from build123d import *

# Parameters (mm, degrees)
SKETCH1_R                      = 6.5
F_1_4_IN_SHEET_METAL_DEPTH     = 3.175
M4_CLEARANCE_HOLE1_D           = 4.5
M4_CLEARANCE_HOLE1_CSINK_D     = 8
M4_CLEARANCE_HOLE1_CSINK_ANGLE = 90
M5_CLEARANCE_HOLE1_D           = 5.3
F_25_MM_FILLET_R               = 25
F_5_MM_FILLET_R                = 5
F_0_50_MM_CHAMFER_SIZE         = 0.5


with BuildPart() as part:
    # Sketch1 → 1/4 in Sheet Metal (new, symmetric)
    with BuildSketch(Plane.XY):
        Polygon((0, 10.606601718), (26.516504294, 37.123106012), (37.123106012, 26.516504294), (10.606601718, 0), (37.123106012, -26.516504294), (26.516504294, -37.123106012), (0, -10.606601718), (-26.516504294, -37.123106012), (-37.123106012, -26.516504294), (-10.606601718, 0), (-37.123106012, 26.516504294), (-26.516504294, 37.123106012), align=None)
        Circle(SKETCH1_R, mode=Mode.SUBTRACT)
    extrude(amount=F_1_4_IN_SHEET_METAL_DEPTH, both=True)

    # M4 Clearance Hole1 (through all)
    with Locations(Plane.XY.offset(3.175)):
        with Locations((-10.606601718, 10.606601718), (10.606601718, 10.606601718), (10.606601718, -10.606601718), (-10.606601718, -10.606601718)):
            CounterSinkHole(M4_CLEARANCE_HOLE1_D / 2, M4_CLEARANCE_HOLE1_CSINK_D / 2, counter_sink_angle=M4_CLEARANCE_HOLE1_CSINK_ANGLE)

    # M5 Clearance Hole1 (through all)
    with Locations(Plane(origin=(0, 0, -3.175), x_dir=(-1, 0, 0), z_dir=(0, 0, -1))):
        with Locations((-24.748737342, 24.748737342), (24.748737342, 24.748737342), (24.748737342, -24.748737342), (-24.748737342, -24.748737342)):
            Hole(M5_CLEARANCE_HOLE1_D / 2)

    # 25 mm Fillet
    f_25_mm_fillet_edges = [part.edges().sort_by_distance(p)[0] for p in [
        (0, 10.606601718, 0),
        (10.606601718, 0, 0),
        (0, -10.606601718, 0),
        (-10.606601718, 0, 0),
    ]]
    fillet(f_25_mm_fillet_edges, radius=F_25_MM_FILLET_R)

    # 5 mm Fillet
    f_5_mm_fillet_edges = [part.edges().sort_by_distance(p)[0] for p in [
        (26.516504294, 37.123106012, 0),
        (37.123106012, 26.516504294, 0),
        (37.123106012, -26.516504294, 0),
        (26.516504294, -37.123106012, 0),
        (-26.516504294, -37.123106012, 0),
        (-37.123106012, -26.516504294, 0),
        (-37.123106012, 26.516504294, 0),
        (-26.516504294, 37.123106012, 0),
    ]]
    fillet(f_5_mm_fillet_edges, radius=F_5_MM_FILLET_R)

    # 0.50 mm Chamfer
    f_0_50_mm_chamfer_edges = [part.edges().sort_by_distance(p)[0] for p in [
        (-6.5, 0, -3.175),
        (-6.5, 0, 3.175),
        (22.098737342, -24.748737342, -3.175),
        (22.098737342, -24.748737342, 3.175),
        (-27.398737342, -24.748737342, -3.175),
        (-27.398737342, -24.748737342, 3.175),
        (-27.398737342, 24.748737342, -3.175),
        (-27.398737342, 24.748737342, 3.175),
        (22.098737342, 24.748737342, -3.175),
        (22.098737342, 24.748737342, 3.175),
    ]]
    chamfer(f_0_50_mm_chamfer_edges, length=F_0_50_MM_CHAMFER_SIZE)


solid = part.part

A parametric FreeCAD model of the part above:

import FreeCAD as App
import Part
import Sketcher
from FreeCAD import Vector
Q = App.Units.Quantity


def edges_at(feature, points):
    """Names of the edges that pass closest to the given points."""
    edges = feature.Shape.Edges
    near = lambda p: min(range(len(edges)), key=lambda i: edges[i].distToShape(Part.Vertex(*p))[0])
    return sorted({f"Edge{near(p) + 1}" for p in points})


def add_polygon(sketch, points):
    """Adds a closed chain of lines whose ends are joined by coincident constraints."""
    first, n = sketch.GeometryCount, len(points)
    for a, b in zip(points, points[1:] + points[:1]):
        sketch.addGeometry(Part.LineSegment(App.Vector(*a, 0), App.Vector(*b, 0)), False)
    for i in range(n):
        sketch.addConstraint(Sketcher.Constraint("Coincident", first + i, 2, first + (i + 1) % n, 1))

doc = App.newDocument("Part")
body = doc.addObject("PartDesign::Body", "Body")

# Sketch on XY plane
sketch1 = body.newObject("Sketcher::SketchObject", "Sketch")
sketch1.AttachmentSupport = (doc.getObject("XY_Plane"), [""])
sketch1.MapMode = "FlatFace"
add_polygon(sketch1, [(27, 37), (0, 11), (-27, 37), (-37, 27), (-11, 0), (-37, -27), (-27, -37), (0, -11), (27, -37), (37, -27), (11, 0), (37, 27)])  # lines 0-11
sketch1.addGeometry(Part.Circle(Vector(0, 0, 0), Vector(0, 0, 1), 6), False)  # 12
sketch1.addConstraint([
    Sketcher.Constraint("Coincident", 12, 3, -1, 1),
    Sketcher.Constraint("Symmetric", 0, 2, 6, 2, -1, 1),
    Sketcher.Constraint("Symmetric", 1, 2, 7, 2, -1, 1),
    Sketcher.Constraint("Symmetric", 2, 2, 8, 2, -1, 1),
    Sketcher.Constraint("Symmetric", 3, 2, 9, 2, -1, 1),
    Sketcher.Constraint("Symmetric", 4, 2, 10, 2, -1, 1),
    Sketcher.Constraint("Symmetric", 5, 2, 11, 2, -1, 1),
    Sketcher.Constraint("Symmetric", 5, 2, 7, 2, -2),
    Sketcher.Constraint("Symmetric", 4, 2, 8, 2, -2),
    Sketcher.Constraint("PointOnObject", 0, 2, -2),
    Sketcher.Constraint("PointOnObject", 3, 2, -1),
    Sketcher.Constraint("Perpendicular", 0, 1),
    Sketcher.Constraint("Perpendicular", 1, 2),
    Sketcher.Constraint("Perpendicular", 2, 3),
    Sketcher.Constraint("Equal", 1, 3),
    Sketcher.Constraint("Diameter", 12, Q("13 mm")),
    Sketcher.Constraint("Distance", 2, Q("15 mm")),
    Sketcher.Constraint("Distance", 0, Q("37.5 mm")),
])
pad1 = body.newObject("PartDesign::Pad", "Pad")
pad1.Profile = sketch1
pad1.Length = 6.35
pad1.Midplane = True

# Sketch on XY plane
sketch2 = body.newObject("Sketcher::SketchObject", "Sketch001")
sketch2.AttachmentSupport = (doc.getObject("XY_Plane"), [""])
sketch2.MapMode = "FlatFace"
sketch2.AttachmentOffset = App.Placement(Vector(0, 0, 3.175), App.Rotation())
sketch2.addGeometry([
    Part.Circle(Vector(-10.6, 10.6, 0), Vector(0, 0, 1), 2.2),
    Part.Circle(Vector(10.6, 10.6, 0), Vector(0, 0, 1), 2.2),
    Part.Circle(Vector(10.6, -10.6, 0), Vector(0, 0, 1), 2.2),
    Part.Circle(Vector(-10.6, -10.6, 0), Vector(0, 0, 1), 2.2),
], False)
sketch2.addConstraint([
    Sketcher.Constraint("Equal", 0, 1),
    Sketcher.Constraint("Equal", 1, 2),
    Sketcher.Constraint("Equal", 2, 3),
    Sketcher.Constraint("Symmetric", 0, 3, 2, 3, -1, 1),
    Sketcher.Constraint("Symmetric", 1, 3, 3, 3, -1, 1),
    Sketcher.Constraint("Symmetric", 0, 3, 1, 3, -2),
    Sketcher.Constraint("Diameter", 0, Q("4.5 mm")),
    Sketcher.Constraint("DistanceX", 0, 3, -1, 1, Q("10.606602 mm")),
    Sketcher.Constraint("DistanceY", -1, 1, 0, 3, Q("10.606602 mm")),
])
doc.recompute()
hole = body.newObject("PartDesign::Hole", "Hole")
hole.Profile = sketch2
hole.ThreadType = "None"
hole.Diameter = 4.5
hole.DepthType = "ThroughAll"
hole.HoleCutType = "Countersink"
hole.HoleCutDiameter = 8
hole.HoleCutCountersinkAngle = 90

# Sketch on XY plane
sketch3 = body.newObject("Sketcher::SketchObject", "Sketch002")
sketch3.AttachmentSupport = (doc.getObject("XY_Plane"), [""])
sketch3.MapMode = "FlatFace"
sketch3.AttachmentOffset = App.Placement(Vector(0, 0, -3.175), App.Rotation())
sketch3.addGeometry([
    Part.Circle(Vector(24.7, 24.7, 0), Vector(0, 0, 1), 2.6),
    Part.Circle(Vector(-24.7, 24.7, 0), Vector(0, 0, 1), 2.6),
    Part.Circle(Vector(-24.7, -24.7, 0), Vector(0, 0, 1), 2.6),
    Part.Circle(Vector(24.7, -24.7, 0), Vector(0, 0, 1), 2.6),
], False)
sketch3.addConstraint([
    Sketcher.Constraint("Equal", 0, 1),
    Sketcher.Constraint("Equal", 1, 2),
    Sketcher.Constraint("Equal", 2, 3),
    Sketcher.Constraint("Symmetric", 0, 3, 2, 3, -1, 1),
    Sketcher.Constraint("Symmetric", 1, 3, 3, 3, -1, 1),
    Sketcher.Constraint("Symmetric", 0, 3, 1, 3, -2),
    Sketcher.Constraint("Diameter", 0, Q("5.3 mm")),
    Sketcher.Constraint("DistanceX", -1, 1, 0, 3, Q("24.748737 mm")),
    Sketcher.Constraint("DistanceY", -1, 1, 0, 3, Q("24.748737 mm")),
])
doc.recompute()
hole2 = body.newObject("PartDesign::Hole", "Hole001")
hole2.Profile = sketch3
hole2.ThreadType = "None"
hole2.Diameter = 5.3
hole2.DepthType = "ThroughAll"
hole2.Reversed = True
doc.recompute()

fillet = body.newObject("PartDesign::Fillet", "Fillet")
fillet.Base = (hole2, edges_at(hole2, [
    (0, 10.607, 0),
    (10.607, 0, 0),
    (0, -10.607, 0),
    (-10.607, 0, 0),
]))
fillet.Radius = 25
doc.recompute()

fillet2 = body.newObject("PartDesign::Fillet", "Fillet001")
fillet2.Base = (fillet, edges_at(fillet, [
    (26.517, 37.123, 0),
    (37.123, 26.517, 0),
    (37.123, -26.517, 0),
    (26.517, -37.123, 0),
    (-26.517, -37.123, 0),
    (-37.123, -26.517, 0),
    (-37.123, 26.517, 0),
    (-26.517, 37.123, 0),
]))
fillet2.Radius = 5
doc.recompute()

chamfer = body.newObject("PartDesign::Chamfer", "Chamfer")
chamfer.Base = (fillet2, edges_at(fillet2, [
    (-6.5, 0, -3.175),
    (-6.5, 0, 3.175),
    (22.099, -24.749, -3.175),
    (22.099, -24.749, 3.175),
    (-27.399, -24.749, -3.175),
    (-27.399, -24.749, 3.175),
    (-27.399, 24.749, -3.175),
    (-27.399, 24.749, 3.175),
    (22.099, 24.749, -3.175),
    (22.099, 24.749, 3.175),
]))
chamfer.Size = 0.5

doc.recompute()
